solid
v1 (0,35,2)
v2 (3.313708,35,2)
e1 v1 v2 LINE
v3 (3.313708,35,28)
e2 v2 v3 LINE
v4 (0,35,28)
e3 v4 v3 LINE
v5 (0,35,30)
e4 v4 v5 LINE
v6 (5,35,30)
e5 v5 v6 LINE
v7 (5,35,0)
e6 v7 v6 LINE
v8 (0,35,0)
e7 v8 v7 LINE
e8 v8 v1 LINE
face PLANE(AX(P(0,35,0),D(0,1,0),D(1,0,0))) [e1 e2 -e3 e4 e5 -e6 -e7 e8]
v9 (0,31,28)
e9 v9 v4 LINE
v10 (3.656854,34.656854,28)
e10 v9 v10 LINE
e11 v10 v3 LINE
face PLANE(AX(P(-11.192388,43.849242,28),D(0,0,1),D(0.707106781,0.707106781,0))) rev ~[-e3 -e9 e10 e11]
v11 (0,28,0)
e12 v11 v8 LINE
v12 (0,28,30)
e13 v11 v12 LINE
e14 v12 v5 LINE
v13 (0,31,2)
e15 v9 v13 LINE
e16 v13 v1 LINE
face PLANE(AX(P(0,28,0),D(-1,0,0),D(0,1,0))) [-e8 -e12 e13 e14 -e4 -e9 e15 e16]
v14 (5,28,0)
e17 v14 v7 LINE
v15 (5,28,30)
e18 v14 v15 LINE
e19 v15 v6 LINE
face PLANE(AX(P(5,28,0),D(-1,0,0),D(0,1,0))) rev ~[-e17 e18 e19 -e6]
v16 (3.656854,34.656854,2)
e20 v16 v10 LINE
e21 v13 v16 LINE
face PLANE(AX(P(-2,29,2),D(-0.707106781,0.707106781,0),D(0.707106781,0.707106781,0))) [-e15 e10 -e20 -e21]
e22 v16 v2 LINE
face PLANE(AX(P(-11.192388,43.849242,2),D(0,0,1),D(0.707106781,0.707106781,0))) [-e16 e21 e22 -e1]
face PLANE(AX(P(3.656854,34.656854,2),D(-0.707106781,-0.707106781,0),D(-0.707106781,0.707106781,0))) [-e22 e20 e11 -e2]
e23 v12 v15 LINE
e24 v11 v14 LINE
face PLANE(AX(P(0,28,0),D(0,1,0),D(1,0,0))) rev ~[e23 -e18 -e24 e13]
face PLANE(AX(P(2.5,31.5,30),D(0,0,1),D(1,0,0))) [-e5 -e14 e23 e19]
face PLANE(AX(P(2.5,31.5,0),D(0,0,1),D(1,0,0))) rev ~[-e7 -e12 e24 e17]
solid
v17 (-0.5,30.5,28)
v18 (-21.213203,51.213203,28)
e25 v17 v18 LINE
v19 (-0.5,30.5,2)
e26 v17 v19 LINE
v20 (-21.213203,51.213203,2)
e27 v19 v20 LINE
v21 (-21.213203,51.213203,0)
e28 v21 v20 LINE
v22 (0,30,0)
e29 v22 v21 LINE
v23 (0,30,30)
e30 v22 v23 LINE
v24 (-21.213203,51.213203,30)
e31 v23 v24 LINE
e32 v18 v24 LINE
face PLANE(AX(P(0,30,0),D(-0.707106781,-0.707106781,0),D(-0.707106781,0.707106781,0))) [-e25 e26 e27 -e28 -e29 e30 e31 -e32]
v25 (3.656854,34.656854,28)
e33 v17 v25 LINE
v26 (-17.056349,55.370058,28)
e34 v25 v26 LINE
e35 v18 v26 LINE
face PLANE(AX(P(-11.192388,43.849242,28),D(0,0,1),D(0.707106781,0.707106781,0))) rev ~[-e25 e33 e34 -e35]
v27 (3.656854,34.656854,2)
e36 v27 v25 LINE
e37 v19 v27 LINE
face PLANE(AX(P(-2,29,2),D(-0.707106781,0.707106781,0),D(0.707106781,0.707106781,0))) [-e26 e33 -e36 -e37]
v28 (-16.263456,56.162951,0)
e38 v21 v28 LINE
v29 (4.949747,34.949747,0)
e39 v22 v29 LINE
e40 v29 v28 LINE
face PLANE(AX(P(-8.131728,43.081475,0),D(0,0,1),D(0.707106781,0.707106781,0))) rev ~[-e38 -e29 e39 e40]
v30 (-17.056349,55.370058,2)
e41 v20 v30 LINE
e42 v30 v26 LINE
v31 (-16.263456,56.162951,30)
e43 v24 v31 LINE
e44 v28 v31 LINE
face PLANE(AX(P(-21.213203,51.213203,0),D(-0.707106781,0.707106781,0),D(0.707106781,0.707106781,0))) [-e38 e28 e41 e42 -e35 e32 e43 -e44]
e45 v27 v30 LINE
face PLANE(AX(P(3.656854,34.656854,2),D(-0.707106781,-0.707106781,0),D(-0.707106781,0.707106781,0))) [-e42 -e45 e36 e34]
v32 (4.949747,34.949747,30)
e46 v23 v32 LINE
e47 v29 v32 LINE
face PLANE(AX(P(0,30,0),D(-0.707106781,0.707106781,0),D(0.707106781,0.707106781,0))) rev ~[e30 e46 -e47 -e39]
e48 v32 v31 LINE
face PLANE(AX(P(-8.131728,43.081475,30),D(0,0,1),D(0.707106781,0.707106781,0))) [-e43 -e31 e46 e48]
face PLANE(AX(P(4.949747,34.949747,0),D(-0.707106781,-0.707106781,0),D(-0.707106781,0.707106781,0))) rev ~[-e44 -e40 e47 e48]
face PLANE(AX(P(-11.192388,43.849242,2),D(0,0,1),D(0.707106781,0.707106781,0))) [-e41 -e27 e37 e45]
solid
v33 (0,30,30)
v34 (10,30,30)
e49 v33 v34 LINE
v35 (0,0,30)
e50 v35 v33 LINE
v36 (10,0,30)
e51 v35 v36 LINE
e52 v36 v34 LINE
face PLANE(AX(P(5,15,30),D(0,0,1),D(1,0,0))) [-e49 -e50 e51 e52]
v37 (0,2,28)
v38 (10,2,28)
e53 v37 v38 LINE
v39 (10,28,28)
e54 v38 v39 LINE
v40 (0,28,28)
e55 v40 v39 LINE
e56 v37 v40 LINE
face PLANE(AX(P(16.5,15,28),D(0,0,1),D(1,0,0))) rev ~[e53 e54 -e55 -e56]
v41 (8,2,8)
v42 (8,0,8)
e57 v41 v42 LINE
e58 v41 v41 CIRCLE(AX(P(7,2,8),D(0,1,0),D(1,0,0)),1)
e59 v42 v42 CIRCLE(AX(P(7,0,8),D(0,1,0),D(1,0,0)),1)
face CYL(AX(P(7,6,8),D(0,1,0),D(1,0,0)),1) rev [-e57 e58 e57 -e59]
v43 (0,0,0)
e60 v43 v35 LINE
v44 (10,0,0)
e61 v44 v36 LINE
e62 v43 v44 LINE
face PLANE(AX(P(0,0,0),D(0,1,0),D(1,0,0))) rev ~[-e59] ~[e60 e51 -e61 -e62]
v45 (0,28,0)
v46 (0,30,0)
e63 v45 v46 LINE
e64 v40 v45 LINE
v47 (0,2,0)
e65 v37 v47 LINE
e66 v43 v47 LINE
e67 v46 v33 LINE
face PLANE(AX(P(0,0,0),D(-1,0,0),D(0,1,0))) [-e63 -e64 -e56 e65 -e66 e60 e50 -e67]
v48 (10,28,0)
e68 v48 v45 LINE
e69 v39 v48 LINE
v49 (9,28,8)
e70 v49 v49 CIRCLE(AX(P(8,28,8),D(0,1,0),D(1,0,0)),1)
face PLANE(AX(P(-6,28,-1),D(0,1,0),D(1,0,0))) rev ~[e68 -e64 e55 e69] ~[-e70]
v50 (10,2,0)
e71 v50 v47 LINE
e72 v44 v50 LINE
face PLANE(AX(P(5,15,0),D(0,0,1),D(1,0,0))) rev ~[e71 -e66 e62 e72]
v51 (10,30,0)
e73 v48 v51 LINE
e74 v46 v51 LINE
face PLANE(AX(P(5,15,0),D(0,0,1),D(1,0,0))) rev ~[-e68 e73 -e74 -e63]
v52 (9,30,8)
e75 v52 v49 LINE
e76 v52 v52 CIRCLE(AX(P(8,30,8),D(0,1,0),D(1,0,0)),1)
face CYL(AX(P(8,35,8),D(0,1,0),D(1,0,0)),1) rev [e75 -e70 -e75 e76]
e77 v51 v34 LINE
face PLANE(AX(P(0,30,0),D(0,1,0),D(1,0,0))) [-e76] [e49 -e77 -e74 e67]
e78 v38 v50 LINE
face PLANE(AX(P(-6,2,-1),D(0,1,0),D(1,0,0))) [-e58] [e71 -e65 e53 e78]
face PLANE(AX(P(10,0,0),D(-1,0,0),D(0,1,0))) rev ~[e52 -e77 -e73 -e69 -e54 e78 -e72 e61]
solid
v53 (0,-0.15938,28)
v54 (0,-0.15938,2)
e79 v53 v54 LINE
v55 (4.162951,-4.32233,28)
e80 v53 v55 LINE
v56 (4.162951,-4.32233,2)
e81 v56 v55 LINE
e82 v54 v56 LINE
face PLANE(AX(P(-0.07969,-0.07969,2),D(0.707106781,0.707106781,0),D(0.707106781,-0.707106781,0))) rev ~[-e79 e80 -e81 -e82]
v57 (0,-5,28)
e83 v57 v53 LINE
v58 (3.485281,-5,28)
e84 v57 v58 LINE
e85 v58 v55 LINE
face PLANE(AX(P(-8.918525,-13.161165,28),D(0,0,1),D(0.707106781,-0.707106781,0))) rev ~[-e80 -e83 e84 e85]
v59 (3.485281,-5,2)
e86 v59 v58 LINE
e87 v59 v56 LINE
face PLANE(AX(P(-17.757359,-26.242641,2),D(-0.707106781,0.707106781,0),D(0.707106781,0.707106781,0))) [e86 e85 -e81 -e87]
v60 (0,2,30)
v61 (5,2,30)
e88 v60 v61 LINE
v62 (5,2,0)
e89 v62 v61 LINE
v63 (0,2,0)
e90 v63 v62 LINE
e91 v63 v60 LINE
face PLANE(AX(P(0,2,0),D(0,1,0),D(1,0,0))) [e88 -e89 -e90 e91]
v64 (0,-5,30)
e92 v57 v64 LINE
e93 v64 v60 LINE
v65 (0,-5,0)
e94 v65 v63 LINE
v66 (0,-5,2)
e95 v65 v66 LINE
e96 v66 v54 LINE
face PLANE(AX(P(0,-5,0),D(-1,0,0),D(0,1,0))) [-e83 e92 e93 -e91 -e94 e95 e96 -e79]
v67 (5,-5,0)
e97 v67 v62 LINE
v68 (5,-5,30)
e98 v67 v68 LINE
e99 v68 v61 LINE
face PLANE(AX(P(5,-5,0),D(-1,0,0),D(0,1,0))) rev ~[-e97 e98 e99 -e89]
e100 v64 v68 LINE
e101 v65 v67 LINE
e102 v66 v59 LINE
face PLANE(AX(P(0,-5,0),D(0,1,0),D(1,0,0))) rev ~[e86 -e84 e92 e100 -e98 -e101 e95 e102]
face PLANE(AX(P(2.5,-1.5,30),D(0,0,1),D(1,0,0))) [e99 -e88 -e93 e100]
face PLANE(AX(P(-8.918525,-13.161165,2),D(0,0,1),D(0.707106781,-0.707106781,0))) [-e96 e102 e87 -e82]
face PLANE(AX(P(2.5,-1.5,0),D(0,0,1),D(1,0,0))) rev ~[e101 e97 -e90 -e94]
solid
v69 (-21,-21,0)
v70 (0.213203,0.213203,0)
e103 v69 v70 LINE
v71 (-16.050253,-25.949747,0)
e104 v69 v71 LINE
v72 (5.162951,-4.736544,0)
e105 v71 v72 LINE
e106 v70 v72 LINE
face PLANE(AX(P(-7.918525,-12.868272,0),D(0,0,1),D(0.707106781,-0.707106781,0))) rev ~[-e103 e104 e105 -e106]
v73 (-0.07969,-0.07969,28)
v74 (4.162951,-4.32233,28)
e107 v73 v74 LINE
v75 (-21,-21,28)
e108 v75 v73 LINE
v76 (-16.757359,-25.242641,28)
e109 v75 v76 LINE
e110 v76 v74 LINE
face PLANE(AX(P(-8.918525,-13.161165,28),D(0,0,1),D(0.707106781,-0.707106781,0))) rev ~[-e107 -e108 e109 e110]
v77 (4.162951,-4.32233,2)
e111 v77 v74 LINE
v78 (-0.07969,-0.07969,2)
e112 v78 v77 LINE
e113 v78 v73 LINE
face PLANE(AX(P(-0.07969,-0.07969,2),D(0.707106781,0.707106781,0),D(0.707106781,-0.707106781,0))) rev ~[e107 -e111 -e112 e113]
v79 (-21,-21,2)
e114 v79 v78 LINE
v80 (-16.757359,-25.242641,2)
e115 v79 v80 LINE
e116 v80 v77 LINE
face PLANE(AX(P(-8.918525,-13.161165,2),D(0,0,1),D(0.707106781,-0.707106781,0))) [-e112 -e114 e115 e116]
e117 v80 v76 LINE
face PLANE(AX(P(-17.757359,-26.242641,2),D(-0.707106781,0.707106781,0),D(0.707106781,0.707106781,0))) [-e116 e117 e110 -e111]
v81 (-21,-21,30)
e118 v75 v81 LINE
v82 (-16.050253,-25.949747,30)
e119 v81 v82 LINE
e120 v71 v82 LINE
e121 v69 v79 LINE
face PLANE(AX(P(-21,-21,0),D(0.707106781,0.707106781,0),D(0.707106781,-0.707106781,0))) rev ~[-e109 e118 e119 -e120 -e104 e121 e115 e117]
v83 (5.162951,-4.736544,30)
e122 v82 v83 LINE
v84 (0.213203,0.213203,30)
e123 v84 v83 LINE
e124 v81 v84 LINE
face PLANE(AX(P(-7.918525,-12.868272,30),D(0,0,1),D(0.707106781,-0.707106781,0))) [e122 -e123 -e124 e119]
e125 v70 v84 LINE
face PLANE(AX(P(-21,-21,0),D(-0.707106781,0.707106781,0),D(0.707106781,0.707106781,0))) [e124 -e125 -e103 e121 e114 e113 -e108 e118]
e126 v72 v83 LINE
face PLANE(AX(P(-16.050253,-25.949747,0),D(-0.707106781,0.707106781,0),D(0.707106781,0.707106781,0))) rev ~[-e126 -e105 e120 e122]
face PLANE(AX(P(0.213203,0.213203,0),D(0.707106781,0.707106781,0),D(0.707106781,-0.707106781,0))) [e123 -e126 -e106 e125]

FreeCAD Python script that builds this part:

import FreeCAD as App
import Part
import Sketcher
from FreeCAD import Vector

doc = App.newDocument("Part")
body = doc.addObject("PartDesign::Body", "Body")

# Sketch on XY plane
sketch1 = body.newObject("Sketcher::SketchObject", "Sketch")
sketch1.AttachmentSupport = (doc.getObject("XY_Plane"), [""])
sketch1.MapMode = "FlatFace"
sketch1.addGeometry(Part.Circle(Vector(0, 0, 0), Vector(0, 0, 1), 1), False)
sketch1.addConstraint([
    Sketcher.Constraint("Coincident", 0, 3, -1, 1),
    Sketcher.Constraint("Diameter", 0, 2.0),
])
pad1 = body.newObject("PartDesign::Pad", "Pad")
pad1.Profile = sketch1
pad1.Length = 10
body2 = doc.addObject("PartDesign::Body", "Body001")
doc.recompute()

body.Placement = App.Placement(Vector(0, 0, 0), App.Rotation(Vector(1, 0, 0), 90))
boolean = body2.newObject("PartDesign::Boolean", "Boolean")
boolean.Type = "Fuse"
boolean.addObjects([body])
body3 = doc.addObject("PartDesign::Body", "Body002")
doc.recompute()

body2.Placement = App.Placement(Vector(8, 35, 8), App.Rotation(Vector(0, 0, 1), 0))
boolean2 = body3.newObject("PartDesign::Boolean", "Boolean001")
boolean2.Type = "Fuse"
boolean2.addObjects([body2])
body4 = doc.addObject("PartDesign::Body", "Body003")

# Sketch on XY plane
sketch2 = body4.newObject("Sketcher::SketchObject", "Sketch001")
sketch2.AttachmentSupport = (doc.getObject("XY_Plane003"), [""])
sketch2.MapMode = "FlatFace"
sketch2.addGeometry(Part.Circle(Vector(0, 0, 0), Vector(0, 0, 1), 1), False)
sketch2.addConstraint([
    Sketcher.Constraint("Coincident", 0, 3, -1, 1),
    Sketcher.Constraint("Diameter", 0, 2.0),
])
pad2 = body4.newObject("PartDesign::Pad", "Pad001")
pad2.Profile = sketch2
pad2.Length = 10
body5 = doc.addObject("PartDesign::Body", "Body004")
doc.recompute()

body4.Placement = App.Placement(Vector(0, 0, 0), App.Rotation(Vector(1, 0, 0), 90))
boolean3 = body5.newObject("PartDesign::Boolean", "Boolean002")
boolean3.Type = "Fuse"
boolean3.addObjects([body4])
body6 = doc.addObject("PartDesign::Body", "Body005")
doc.recompute()

body5.Placement = App.Placement(Vector(7, 6, 8), App.Rotation(Vector(0, 0, 1), 0))
boolean4 = body6.newObject("PartDesign::Boolean", "Boolean003")
boolean4.Type = "Fuse"
boolean4.addObjects([body5])
body7 = doc.addObject("PartDesign::Body", "Body006")

# Sketch on XY plane
sketch3 = body7.newObject("Sketcher::SketchObject", "Sketch002")
sketch3.AttachmentSupport = (doc.getObject("XY_Plane006"), [""])
sketch3.MapMode = "FlatFace"
sketch3.AttachmentOffset = App.Placement(Vector(0, 0, -1), App.Rotation())
sketch3.addGeometry([
    Part.LineSegment(Vector(-6, 28, 0), Vector(-6, 2, 0)),
    Part.LineSegment(Vector(-6, 2, 0), Vector(39, 2, 0)),
    Part.LineSegment(Vector(39, 2, 0), Vector(39, 28, 0)),
    Part.LineSegment(Vector(39, 28, 0), Vector(-6, 28, 0)),
], False)
sketch3.addConstraint([
    Sketcher.Constraint("Coincident", 0, 2, 1, 1),
    Sketcher.Constraint("Coincident", 1, 2, 2, 1),
    Sketcher.Constraint("Coincident", 2, 2, 3, 1),
    Sketcher.Constraint("Coincident", 3, 2, 0, 1),
    Sketcher.Constraint("Vertical", 0),
    Sketcher.Constraint("Horizontal", 1),
    Sketcher.Constraint("Vertical", 2),
    Sketcher.Constraint("Horizontal", 3),
    Sketcher.Constraint("DistanceX", 1, 1, 1, 2, 45.0),
    Sketcher.Constraint("DistanceY", 0, 2, 0, 1, 26.0),
    Sketcher.Constraint("DistanceX", 0, 2, -1, 1, 6.0),
    Sketcher.Constraint("DistanceY", -1, 1, 0, 2, 2.0),
])
pad3 = body7.newObject("PartDesign::Pad", "Pad002")
pad3.Profile = sketch3
pad3.Length = 29
body8 = doc.addObject("PartDesign::Body", "Body007")

# Sketch on XY plane
sketch4 = body8.newObject("Sketcher::SketchObject", "Sketch003")
sketch4.AttachmentSupport = (doc.getObject("XY_Plane007"), [""])
sketch4.MapMode = "FlatFace"
sketch4.addGeometry([
    Part.LineSegment(Vector(0, 30, 0), Vector(0, 0, 0)),
    Part.LineSegment(Vector(0, 0, 0), Vector(10, 0, 0)),
    Part.LineSegment(Vector(10, 0, 0), Vector(10, 30, 0)),
    Part.LineSegment(Vector(10, 30, 0), Vector(0, 30, 0)),
], False)
sketch4.addConstraint([
    Sketcher.Constraint("Coincident", 0, 2, 1, 1),
    Sketcher.Constraint("Coincident", 1, 2, 2, 1),
    Sketcher.Constraint("Coincident", 2, 2, 3, 1),
    Sketcher.Constraint("Coincident", 3, 2, 0, 1),
    Sketcher.Constraint("Vertical", 0),
    Sketcher.Constraint("Horizontal", 1),
    Sketcher.Constraint("Vertical", 2),
    Sketcher.Constraint("Horizontal", 3),
    Sketcher.Constraint("Coincident", 0, 2, -1, 1),
    Sketcher.Constraint("DistanceX", 1, 1, 1, 2, 10.0),
    Sketcher.Constraint("DistanceY", 0, 2, 0, 1, 30.0),
])
pad4 = body8.newObject("PartDesign::Pad", "Pad003")
pad4.Profile = sketch4
pad4.Length = 30
doc.recompute()

boolean5 = body8.newObject("PartDesign::Boolean", "Boolean004")
boolean5.Type = "Cut"
boolean5.addObjects([body7])
doc.recompute()

boolean6 = body8.newObject("PartDesign::Boolean", "Boolean005")
boolean6.Type = "Cut"
boolean6.addObjects([body6])
doc.recompute()

boolean7 = body8.newObject("PartDesign::Boolean", "Boolean006")
boolean7.Type = "Cut"
boolean7.addObjects([body3])
body9 = doc.addObject("PartDesign::Body", "Body008")

# Sketch on XY plane
sketch5 = body9.newObject("Sketcher::SketchObject", "Sketch004")
sketch5.AttachmentSupport = (doc.getObject("XY_Plane008"), [""])
sketch5.MapMode = "FlatFace"
sketch5.addGeometry([
    Part.LineSegment(Vector(0, 31, 0), Vector(0, 0, 0)),
    Part.LineSegment(Vector(0, 0, 0), Vector(6, 0, 0)),
    Part.LineSegment(Vector(6, 0, 0), Vector(6, 31, 0)),
    Part.LineSegment(Vector(6, 31, 0), Vector(0, 31, 0)),
], False)
sketch5.addConstraint([
    Sketcher.Constraint("Coincident", 0, 2, 1, 1),
    Sketcher.Constraint("Coincident", 1, 2, 2, 1),
    Sketcher.Constraint("Coincident", 2, 2, 3, 1),
    Sketcher.Constraint("Coincident", 3, 2, 0, 1),
    Sketcher.Constraint("Vertical", 0),
    Sketcher.Constraint("Horizontal", 1),
    Sketcher.Constraint("Vertical", 2),
    Sketcher.Constraint("Horizontal", 3),
    Sketcher.Constraint("Coincident", 0, 2, -1, 1),
    Sketcher.Constraint("DistanceX", 1, 1, 1, 2, 6.0),
    Sketcher.Constraint("DistanceY", 0, 2, 0, 1, 31.0),
])
pad5 = body9.newObject("PartDesign::Pad", "Pad004")
pad5.Profile = sketch5
pad5.Length = 26
body10 = doc.addObject("PartDesign::Body", "Body009")
doc.recompute()

body9.Placement = App.Placement(Vector(-22, -22, 2), App.Rotation(Vector(0, 0, 1), 315))
boolean8 = body10.newObject("PartDesign::Boolean", "Boolean007")
boolean8.Type = "Fuse"
boolean8.addObjects([body9])
body11 = doc.addObject("PartDesign::Body", "Body010")

# Sketch on XY plane
sketch6 = body11.newObject("Sketcher::SketchObject", "Sketch005")
sketch6.AttachmentSupport = (doc.getObject("XY_Plane010"), [""])
sketch6.MapMode = "FlatFace"
sketch6.addGeometry([
    Part.LineSegment(Vector(0, 30, 0), Vector(0, 0, 0)),
    Part.LineSegment(Vector(0, 0, 0), Vector(7, 0, 0)),
    Part.LineSegment(Vector(7, 0, 0), Vector(7, 30, 0)),
    Part.LineSegment(Vector(7, 30, 0), Vector(0, 30, 0)),
], False)
sketch6.addConstraint([
    Sketcher.Constraint("Coincident", 0, 2, 1, 1),
    Sketcher.Constraint("Coincident", 1, 2, 2, 1),
    Sketcher.Constraint("Coincident", 2, 2, 3, 1),
    Sketcher.Constraint("Coincident", 3, 2, 0, 1),
    Sketcher.Constraint("Vertical", 0),
    Sketcher.Constraint("Horizontal", 1),
    Sketcher.Constraint("Vertical", 2),
    Sketcher.Constraint("Horizontal", 3),
    Sketcher.Constraint("Coincident", 0, 2, -1, 1),
    Sketcher.Constraint("DistanceX", 1, 1, 1, 2, 7.0),
    Sketcher.Constraint("DistanceY", 0, 2, 0, 1, 30.0),
])
pad6 = body11.newObject("PartDesign::Pad", "Pad005")
pad6.Profile = sketch6
pad6.Length = 30
body12 = doc.addObject("PartDesign::Body", "Body011")
doc.recompute()

body11.Placement = App.Placement(Vector(-21, -21, 0), App.Rotation(Vector(0, 0, 1), 315))
boolean9 = body12.newObject("PartDesign::Boolean", "Boolean008")
boolean9.Type = "Fuse"
boolean9.addObjects([body11])
doc.recompute()

body13 = doc.addObject("PartDesign::Body", "Body012")
body13.BaseFeature = body10
boolean10 = body12.newObject("PartDesign::Boolean", "Boolean009")
boolean10.Type = "Cut"
boolean10.addObjects([body13])
doc.recompute()
body14 = doc.addObject("PartDesign::Body", "Body013")

# Sketch on XY plane
sketch7 = body14.newObject("Sketcher::SketchObject", "Sketch006")
sketch7.AttachmentSupport = (doc.getObject("XY_Plane013"), [""])
sketch7.MapMode = "FlatFace"
sketch7.addGeometry([
    Part.LineSegment(Vector(0, 34, 0), Vector(0, 0, 0)),
    Part.LineSegment(Vector(0, 0, 0), Vector(8, 0, 0)),
    Part.LineSegment(Vector(8, 0, 0), Vector(8, 34, 0)),
    Part.LineSegment(Vector(8, 34, 0), Vector(0, 34, 0)),
], False)
sketch7.addConstraint([
    Sketcher.Constraint("Coincident", 0, 2, 1, 1),
    Sketcher.Constraint("Coincident", 1, 2, 2, 1),
    Sketcher.Constraint("Coincident", 2, 2, 3, 1),
    Sketcher.Constraint("Coincident", 3, 2, 0, 1),
    Sketcher.Constraint("Vertical", 0),
    Sketcher.Constraint("Horizontal", 1),
    Sketcher.Constraint("Vertical", 2),
    Sketcher.Constraint("Horizontal", 3),
    Sketcher.Constraint("Coincident", 0, 2, -1, 1),
    Sketcher.Constraint("DistanceX", 1, 1, 1, 2, 8.0),
    Sketcher.Constraint("DistanceY", 0, 2, 0, 1, 34.0),
])
pad7 = body14.newObject("PartDesign::Pad", "Pad006")
pad7.Profile = sketch7
pad7.Length = 26
body15 = doc.addObject("PartDesign::Body", "Body014")
doc.recompute()

body14.Placement = App.Placement(Vector(-2, 29, 2), App.Rotation(Vector(0, 0, 1), 45))
boolean11 = body15.newObject("PartDesign::Boolean", "Boolean010")
boolean11.Type = "Fuse"
boolean11.addObjects([body14])
body16 = doc.addObject("PartDesign::Body", "Body015")

# Sketch on XY plane
sketch8 = body16.newObject("Sketcher::SketchObject", "Sketch007")
sketch8.AttachmentSupport = (doc.getObject("XY_Plane015"), [""])
sketch8.MapMode = "FlatFace"
sketch8.addGeometry([
    Part.LineSegment(Vector(0, 30, 0), Vector(0, 0, 0)),
    Part.LineSegment(Vector(0, 0, 0), Vector(7, 0, 0)),
    Part.LineSegment(Vector(7, 0, 0), Vector(7, 30, 0)),
    Part.LineSegment(Vector(7, 30, 0), Vector(0, 30, 0)),
], False)
sketch8.addConstraint([
    Sketcher.Constraint("Coincident", 0, 2, 1, 1),
    Sketcher.Constraint("Coincident", 1, 2, 2, 1),
    Sketcher.Constraint("Coincident", 2, 2, 3, 1),
    Sketcher.Constraint("Coincident", 3, 2, 0, 1),
    Sketcher.Constraint("Vertical", 0),
    Sketcher.Constraint("Horizontal", 1),
    Sketcher.Constraint("Vertical", 2),
    Sketcher.Constraint("Horizontal", 3),
    Sketcher.Constraint("Coincident", 0, 2, -1, 1),
    Sketcher.Constraint("DistanceX", 1, 1, 1, 2, 7.0),
    Sketcher.Constraint("DistanceY", 0, 2, 0, 1, 30.0),
])
pad8 = body16.newObject("PartDesign::Pad", "Pad007")
pad8.Profile = sketch8
pad8.Length = 30
body17 = doc.addObject("PartDesign::Body", "Body016")
doc.recompute()

body16.Placement = App.Placement(Vector(0, 30, 0), App.Rotation(Vector(0, 0, 1), 45))
boolean12 = body17.newObject("PartDesign::Boolean", "Boolean011")
boolean12.Type = "Fuse"
boolean12.addObjects([body16])
doc.recompute()

body18 = doc.addObject("PartDesign::Body", "Body017")
body18.BaseFeature = body15
boolean13 = body17.newObject("PartDesign::Boolean", "Boolean012")
boolean13.Type = "Cut"
boolean13.addObjects([body18])
doc.recompute()
body19 = doc.addObject("PartDesign::Body", "Body018")

# Sketch on XY plane
sketch9 = body19.newObject("Sketcher::SketchObject", "Sketch008")
sketch9.AttachmentSupport = (doc.getObject("XY_Plane018"), [""])
sketch9.MapMode = "FlatFace"
sketch9.addGeometry([
    Part.LineSegment(Vector(0, 35, 0), Vector(0, 28, 0)),
    Part.LineSegment(Vector(0, 28, 0), Vector(5, 28, 0)),
    Part.LineSegment(Vector(5, 28, 0), Vector(5, 35, 0)),
    Part.LineSegment(Vector(5, 35, 0), Vector(0, 35, 0)),
], False)
sketch9.addConstraint([
    Sketcher.Constraint("Coincident", 0, 2, 1, 1),
    Sketcher.Constraint("Coincident", 1, 2, 2, 1),
    Sketcher.Constraint("Coincident", 2, 2, 3, 1),
    Sketcher.Constraint("Coincident", 3, 2, 0, 1),
    Sketcher.Constraint("Vertical", 0),
    Sketcher.Constraint("Horizontal", 1),
    Sketcher.Constraint("Vertical", 2),
    Sketcher.Constraint("Horizontal", 3),
    Sketcher.Constraint("PointOnObject", 0, 2, -2),
    Sketcher.Constraint("DistanceX", 1, 1, 1, 2, 5.0),
    Sketcher.Constraint("DistanceY", 0, 2, 0, 1, 7.0),
    Sketcher.Constraint("DistanceY", -1, 1, 0, 2, 28.0),
])
pad9 = body19.newObject("PartDesign::Pad", "Pad008")
pad9.Profile = sketch9
pad9.Length = 30
doc.recompute()

boolean14 = body19.newObject("PartDesign::Boolean", "Boolean013")
boolean14.Type = "Cut"
boolean14.addObjects([body15])
body20 = doc.addObject("PartDesign::Body", "Body019")

# Sketch on XY plane
sketch10 = body20.newObject("Sketcher::SketchObject", "Sketch009")
sketch10.AttachmentSupport = (doc.getObject("XY_Plane019"), [""])
sketch10.MapMode = "FlatFace"
sketch10.addGeometry([
    Part.LineSegment(Vector(0, 2, 0), Vector(0, -5, 0)),
    Part.LineSegment(Vector(0, -5, 0), Vector(5, -5, 0)),
    Part.LineSegment(Vector(5, -5, 0), Vector(5, 2, 0)),
    Part.LineSegment(Vector(5, 2, 0), Vector(0, 2, 0)),
], False)
sketch10.addConstraint([
    Sketcher.Constraint("Coincident", 0, 2, 1, 1),
    Sketcher.Constraint("Coincident", 1, 2, 2, 1),
    Sketcher.Constraint("Coincident", 2, 2, 3, 1),
    Sketcher.Constraint("Coincident", 3, 2, 0, 1),
    Sketcher.Constraint("Vertical", 0),
    Sketcher.Constraint("Horizontal", 1),
    Sketcher.Constraint("Vertical", 2),
    Sketcher.Constraint("Horizontal", 3),
    Sketcher.Constraint("PointOnObject", 0, 2, -2),
    Sketcher.Constraint("DistanceX", 1, 1, 1, 2, 5.0),
    Sketcher.Constraint("DistanceY", 0, 2, 0, 1, 7.0),
    Sketcher.Constraint("DistanceY", 0, 2, -1, 1, 5.0),
])
pad10 = body20.newObject("PartDesign::Pad", "Pad009")
pad10.Profile = sketch10
pad10.Length = 30
doc.recompute()

boolean15 = body20.newObject("PartDesign::Boolean", "Boolean014")
boolean15.Type = "Cut"
boolean15.addObjects([body10])

doc.recompute()
